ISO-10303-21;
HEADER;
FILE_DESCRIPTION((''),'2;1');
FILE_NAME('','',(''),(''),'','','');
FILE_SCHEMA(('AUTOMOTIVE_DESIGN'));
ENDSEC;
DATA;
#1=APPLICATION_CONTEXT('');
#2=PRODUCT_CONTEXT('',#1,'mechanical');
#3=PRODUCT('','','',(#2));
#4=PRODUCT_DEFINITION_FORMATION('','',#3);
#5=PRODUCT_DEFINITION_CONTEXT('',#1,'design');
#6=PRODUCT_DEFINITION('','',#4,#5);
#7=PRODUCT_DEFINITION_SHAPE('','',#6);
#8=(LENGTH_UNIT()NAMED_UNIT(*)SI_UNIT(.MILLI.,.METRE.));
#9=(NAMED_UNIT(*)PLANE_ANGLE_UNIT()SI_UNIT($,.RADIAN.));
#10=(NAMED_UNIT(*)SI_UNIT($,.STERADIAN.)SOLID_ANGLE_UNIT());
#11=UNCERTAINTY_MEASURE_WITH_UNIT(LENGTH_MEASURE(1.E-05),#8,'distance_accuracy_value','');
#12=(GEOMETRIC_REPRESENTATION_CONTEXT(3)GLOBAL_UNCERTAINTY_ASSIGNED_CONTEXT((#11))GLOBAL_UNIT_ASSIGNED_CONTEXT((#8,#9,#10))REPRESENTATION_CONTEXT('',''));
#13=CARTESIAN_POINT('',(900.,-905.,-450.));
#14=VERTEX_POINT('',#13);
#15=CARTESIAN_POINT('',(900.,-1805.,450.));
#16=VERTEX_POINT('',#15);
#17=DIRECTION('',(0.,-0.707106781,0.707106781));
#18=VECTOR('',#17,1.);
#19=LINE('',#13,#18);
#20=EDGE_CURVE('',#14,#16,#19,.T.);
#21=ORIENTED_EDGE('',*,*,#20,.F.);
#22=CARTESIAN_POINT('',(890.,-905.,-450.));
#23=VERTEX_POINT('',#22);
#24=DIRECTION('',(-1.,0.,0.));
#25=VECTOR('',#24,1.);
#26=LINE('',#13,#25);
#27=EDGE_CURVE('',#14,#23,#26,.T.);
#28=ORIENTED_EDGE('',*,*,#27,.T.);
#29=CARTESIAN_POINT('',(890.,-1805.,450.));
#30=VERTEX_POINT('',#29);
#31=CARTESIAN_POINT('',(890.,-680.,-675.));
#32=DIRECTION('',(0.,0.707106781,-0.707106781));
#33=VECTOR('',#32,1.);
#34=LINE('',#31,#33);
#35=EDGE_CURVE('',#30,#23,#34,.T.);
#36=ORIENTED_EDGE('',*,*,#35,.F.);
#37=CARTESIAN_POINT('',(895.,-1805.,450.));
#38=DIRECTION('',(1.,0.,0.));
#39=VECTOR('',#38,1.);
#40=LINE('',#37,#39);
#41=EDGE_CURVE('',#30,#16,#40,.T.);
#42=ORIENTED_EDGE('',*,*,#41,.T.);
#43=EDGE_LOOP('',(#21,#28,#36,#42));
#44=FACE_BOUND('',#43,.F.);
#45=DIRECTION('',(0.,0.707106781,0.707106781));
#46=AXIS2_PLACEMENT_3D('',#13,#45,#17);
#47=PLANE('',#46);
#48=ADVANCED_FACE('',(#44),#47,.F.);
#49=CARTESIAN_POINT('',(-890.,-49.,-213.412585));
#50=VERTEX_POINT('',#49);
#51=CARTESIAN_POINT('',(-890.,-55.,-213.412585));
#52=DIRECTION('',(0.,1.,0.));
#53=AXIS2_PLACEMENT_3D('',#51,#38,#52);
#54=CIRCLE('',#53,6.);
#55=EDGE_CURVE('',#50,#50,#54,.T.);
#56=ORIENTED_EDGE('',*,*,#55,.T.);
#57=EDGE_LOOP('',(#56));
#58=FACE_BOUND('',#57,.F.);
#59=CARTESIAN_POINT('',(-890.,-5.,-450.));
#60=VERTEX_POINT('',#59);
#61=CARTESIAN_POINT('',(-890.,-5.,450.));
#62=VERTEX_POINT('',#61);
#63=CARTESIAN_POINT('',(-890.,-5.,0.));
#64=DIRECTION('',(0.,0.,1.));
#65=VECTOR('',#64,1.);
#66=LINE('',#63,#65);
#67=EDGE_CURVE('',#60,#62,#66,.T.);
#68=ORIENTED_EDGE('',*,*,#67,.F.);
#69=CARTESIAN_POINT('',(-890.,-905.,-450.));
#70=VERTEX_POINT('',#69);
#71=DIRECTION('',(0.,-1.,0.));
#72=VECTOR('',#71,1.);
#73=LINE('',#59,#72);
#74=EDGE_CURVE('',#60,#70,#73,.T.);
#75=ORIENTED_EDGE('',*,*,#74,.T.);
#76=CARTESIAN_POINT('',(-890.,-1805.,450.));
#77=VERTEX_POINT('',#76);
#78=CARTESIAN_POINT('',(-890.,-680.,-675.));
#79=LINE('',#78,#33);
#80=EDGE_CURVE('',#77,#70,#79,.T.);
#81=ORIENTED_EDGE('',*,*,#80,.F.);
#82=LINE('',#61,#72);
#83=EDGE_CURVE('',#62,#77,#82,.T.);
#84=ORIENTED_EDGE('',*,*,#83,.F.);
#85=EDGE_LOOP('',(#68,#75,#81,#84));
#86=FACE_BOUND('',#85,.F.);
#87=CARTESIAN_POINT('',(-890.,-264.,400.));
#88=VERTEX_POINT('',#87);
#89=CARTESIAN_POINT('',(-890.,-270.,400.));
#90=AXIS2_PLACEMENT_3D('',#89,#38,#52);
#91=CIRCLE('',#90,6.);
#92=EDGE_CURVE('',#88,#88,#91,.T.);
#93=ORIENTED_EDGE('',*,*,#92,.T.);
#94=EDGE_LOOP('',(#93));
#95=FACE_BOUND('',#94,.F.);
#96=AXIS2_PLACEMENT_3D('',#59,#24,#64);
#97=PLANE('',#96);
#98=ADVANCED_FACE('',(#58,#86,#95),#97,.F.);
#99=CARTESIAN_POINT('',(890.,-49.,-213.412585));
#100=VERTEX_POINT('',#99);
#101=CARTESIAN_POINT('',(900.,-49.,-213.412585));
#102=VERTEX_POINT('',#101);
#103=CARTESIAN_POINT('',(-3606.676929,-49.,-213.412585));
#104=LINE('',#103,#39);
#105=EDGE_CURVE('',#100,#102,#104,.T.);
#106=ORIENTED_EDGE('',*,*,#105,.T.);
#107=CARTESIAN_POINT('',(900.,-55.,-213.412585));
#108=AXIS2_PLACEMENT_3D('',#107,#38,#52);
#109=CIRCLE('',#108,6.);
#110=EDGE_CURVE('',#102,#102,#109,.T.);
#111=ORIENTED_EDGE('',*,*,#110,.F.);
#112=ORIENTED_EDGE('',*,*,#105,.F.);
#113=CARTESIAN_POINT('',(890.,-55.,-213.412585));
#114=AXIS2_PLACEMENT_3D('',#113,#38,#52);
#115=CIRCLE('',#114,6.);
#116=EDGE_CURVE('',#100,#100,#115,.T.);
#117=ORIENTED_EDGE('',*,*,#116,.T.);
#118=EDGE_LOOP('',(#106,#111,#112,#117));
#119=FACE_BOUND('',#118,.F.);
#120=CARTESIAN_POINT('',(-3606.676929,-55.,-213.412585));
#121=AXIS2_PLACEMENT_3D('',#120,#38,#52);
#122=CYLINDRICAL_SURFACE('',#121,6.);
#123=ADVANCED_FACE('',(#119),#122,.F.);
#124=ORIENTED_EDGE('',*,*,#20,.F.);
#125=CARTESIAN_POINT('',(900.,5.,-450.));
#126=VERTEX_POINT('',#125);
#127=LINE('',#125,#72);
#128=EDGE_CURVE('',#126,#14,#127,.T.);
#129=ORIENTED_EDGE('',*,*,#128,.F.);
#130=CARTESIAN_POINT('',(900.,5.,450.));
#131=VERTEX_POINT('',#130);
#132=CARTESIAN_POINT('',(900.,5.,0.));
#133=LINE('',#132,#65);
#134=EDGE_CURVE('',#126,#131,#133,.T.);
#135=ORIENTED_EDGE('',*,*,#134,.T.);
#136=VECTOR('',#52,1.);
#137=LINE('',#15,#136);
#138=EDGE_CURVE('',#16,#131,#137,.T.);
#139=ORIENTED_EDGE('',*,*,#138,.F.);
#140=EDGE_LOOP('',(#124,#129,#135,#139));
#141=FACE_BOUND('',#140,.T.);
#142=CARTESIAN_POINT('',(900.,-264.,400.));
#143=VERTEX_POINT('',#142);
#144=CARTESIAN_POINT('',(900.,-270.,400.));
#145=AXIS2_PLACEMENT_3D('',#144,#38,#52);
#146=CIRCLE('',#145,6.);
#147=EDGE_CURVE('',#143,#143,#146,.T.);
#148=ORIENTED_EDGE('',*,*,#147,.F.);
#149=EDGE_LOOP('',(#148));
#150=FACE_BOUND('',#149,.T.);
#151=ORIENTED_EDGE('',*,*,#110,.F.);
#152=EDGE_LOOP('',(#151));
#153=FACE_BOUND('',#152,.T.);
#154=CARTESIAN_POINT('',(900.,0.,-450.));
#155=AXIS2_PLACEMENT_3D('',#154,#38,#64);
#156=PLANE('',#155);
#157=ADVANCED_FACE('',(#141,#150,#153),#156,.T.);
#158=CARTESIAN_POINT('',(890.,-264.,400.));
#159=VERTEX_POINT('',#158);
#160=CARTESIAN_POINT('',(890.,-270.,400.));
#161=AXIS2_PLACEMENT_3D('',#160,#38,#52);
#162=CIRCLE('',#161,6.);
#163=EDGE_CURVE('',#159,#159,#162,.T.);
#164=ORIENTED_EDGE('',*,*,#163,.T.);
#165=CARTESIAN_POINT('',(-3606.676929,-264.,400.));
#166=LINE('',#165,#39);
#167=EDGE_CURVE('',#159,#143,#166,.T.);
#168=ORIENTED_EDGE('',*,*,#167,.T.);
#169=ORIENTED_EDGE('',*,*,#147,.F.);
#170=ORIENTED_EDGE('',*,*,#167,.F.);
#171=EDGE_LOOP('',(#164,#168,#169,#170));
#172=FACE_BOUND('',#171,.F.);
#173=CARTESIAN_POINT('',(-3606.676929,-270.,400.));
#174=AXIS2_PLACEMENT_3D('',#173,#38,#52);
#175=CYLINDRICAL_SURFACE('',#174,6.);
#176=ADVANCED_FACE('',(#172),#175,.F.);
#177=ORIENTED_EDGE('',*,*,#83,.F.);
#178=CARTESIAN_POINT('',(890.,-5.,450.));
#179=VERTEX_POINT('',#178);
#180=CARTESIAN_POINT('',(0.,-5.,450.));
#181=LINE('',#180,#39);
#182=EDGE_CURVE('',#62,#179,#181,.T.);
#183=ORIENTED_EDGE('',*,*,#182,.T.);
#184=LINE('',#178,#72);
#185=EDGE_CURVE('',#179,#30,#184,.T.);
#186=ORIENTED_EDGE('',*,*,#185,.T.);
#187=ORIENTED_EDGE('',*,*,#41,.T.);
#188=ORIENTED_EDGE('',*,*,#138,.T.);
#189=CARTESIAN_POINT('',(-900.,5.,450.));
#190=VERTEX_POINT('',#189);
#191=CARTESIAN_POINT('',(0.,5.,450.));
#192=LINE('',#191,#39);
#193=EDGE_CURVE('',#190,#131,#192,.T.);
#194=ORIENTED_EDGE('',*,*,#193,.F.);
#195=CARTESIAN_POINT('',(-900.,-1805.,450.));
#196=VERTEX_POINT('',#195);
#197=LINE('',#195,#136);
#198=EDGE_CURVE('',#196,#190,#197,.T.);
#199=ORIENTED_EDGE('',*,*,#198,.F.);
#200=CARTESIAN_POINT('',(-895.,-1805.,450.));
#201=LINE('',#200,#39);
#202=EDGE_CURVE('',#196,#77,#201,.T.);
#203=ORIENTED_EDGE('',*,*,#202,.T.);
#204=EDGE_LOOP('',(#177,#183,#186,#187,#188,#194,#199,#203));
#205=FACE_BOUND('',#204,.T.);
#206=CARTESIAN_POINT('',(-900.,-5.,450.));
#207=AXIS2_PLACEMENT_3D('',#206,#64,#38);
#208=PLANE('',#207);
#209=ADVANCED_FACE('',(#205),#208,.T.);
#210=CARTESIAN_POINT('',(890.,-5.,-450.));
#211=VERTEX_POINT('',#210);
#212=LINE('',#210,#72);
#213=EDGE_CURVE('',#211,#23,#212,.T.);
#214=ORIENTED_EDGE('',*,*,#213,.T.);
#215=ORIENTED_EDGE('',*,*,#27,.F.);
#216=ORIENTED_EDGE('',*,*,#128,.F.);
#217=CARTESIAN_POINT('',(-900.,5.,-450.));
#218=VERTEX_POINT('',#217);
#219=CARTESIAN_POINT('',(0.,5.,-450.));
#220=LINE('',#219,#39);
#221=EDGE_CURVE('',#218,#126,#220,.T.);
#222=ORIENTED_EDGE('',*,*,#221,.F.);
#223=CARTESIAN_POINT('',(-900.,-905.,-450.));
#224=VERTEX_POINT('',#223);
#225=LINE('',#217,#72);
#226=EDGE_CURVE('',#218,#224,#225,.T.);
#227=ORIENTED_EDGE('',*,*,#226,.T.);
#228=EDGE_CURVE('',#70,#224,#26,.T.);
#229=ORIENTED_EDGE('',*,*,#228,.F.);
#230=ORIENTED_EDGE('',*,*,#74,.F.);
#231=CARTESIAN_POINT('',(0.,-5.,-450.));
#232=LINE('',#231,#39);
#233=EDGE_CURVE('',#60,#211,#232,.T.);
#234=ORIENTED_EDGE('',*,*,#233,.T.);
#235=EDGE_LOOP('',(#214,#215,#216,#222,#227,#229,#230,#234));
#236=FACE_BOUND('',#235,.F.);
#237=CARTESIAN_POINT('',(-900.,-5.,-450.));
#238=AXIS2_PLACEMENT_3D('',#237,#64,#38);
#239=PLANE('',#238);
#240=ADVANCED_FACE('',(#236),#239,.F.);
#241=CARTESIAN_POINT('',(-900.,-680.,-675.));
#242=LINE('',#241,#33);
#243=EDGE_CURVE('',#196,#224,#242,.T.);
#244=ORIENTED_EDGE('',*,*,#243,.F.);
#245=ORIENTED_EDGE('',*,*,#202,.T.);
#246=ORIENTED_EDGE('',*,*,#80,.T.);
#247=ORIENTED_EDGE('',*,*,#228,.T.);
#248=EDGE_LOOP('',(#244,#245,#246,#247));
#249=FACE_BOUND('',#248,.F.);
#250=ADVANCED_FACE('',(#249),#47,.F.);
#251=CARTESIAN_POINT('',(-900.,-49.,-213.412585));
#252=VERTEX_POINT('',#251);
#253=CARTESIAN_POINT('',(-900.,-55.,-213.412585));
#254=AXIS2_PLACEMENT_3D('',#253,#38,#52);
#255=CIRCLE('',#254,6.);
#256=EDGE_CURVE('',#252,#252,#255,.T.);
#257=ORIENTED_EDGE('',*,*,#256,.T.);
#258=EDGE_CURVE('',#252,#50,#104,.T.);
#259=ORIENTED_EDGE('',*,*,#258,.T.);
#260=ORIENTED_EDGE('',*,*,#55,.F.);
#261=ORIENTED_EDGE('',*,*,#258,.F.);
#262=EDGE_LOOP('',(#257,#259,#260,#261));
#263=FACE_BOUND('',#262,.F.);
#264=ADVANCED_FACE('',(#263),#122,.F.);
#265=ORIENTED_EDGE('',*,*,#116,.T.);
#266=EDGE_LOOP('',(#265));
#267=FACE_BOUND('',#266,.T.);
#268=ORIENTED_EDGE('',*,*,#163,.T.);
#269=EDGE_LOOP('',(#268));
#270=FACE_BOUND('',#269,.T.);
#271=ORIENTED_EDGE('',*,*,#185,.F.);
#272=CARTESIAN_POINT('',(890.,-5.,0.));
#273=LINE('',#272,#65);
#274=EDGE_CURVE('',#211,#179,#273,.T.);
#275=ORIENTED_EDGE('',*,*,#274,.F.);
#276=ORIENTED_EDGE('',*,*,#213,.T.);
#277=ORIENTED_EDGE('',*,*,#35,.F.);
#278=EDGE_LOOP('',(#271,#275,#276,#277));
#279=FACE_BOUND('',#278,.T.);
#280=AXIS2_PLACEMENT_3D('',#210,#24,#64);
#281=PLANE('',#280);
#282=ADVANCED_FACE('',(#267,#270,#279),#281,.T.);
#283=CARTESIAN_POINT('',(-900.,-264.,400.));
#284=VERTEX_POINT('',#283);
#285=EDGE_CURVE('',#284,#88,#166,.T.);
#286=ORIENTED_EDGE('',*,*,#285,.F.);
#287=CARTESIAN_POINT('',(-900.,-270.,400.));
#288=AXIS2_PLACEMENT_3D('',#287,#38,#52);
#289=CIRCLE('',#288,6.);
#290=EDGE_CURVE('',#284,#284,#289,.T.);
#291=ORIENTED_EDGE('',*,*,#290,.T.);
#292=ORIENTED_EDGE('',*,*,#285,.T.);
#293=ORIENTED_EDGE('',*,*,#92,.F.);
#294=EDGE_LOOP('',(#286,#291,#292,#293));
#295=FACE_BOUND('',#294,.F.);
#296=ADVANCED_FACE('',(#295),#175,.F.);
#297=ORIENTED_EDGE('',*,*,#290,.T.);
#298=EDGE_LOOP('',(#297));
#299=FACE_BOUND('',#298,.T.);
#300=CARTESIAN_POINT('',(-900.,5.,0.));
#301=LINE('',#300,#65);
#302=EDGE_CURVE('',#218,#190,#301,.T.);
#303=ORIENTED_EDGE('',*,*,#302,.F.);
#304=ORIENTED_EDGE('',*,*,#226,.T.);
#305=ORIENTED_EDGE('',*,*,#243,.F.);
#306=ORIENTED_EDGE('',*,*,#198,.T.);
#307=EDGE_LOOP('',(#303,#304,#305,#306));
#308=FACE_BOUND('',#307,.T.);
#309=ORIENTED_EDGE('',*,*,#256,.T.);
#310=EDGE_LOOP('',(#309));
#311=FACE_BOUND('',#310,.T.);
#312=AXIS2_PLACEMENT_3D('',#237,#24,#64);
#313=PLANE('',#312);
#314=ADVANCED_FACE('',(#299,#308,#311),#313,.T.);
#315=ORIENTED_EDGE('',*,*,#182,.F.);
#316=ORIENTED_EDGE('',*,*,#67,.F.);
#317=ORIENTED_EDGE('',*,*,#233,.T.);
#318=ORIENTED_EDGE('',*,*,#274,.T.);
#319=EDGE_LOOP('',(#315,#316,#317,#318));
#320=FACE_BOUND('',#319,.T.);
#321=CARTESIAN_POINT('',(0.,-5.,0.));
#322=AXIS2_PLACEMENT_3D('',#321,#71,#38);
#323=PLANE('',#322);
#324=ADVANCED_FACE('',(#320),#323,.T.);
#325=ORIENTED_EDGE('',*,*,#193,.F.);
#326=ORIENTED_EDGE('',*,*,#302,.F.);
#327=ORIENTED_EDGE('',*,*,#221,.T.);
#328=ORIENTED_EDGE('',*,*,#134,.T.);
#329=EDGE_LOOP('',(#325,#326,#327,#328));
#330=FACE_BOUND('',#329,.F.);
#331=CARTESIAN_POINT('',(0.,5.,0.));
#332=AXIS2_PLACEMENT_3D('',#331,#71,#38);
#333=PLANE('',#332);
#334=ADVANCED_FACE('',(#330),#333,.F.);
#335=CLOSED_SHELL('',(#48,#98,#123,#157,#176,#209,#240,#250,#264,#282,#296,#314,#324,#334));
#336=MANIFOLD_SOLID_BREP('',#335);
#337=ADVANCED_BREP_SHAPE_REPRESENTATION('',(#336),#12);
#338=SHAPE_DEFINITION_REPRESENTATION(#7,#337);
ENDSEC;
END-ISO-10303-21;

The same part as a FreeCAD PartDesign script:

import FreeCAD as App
import Part
import Sketcher
from FreeCAD import Vector
Q = App.Units.Quantity

doc = App.newDocument("Part")
body = doc.addObject("PartDesign::Body", "Body")

sketch1 = body.newObject("Sketcher::SketchObject", "Sketch")
sketch1.AttachmentSupport = (doc.getObject("XZ_Plane"), [""])
sketch1.MapMode = "FlatFace"
sketch1.addGeometry([
    Part.LineSegment(Vector(-900, 450, 0), Vector(-900, -450, 0)),
    Part.LineSegment(Vector(-900, -450, 0), Vector(900, -450, 0)),
    Part.LineSegment(Vector(900, -450, 0), Vector(900, 450, 0)),
    Part.LineSegment(Vector(900, 450, 0), Vector(-900, 450, 0)),
], False)
sketch1.addConstraint([
    Sketcher.Constraint("Coincident", 0, 2, 1, 1),
    Sketcher.Constraint("Coincident", 1, 2, 2, 1),
    Sketcher.Constraint("Coincident", 2, 2, 3, 1),
    Sketcher.Constraint("Coincident", 3, 2, 0, 1),
    Sketcher.Constraint("Vertical", 0),
    Sketcher.Constraint("Horizontal", 1),
    Sketcher.Constraint("Vertical", 2),
    Sketcher.Constraint("Horizontal", 3),
    Sketcher.Constraint("Symmetric", 0, 2, 2, 2, -1, 1),
    Sketcher.Constraint("DistanceX", 1, 1, 1, 2, Q("1800 mm")),
    Sketcher.Constraint("DistanceY", 0, 2, 0, 1, Q("900 mm")),
])
pad1 = body.newObject("PartDesign::Pad", "Pad")
pad1.Profile = sketch1
pad1.Length = 10
pad1.Midplane = True

sketch2 = body.newObject("Sketcher::SketchObject", "Sketch001")
sketch2.AttachmentSupport = (doc.getObject("XZ_Plane"), [""])
sketch2.MapMode = "FlatFace"
sketch2.AttachmentOffset = App.Placement(Vector(0, 0, 5), App.Rotation())
sketch2.addGeometry([
    Part.LineSegment(Vector(-900, 450, 0), Vector(-900, -450, 0)),
    Part.LineSegment(Vector(-900, -450, 0), Vector(-890, -450, 0)),
    Part.LineSegment(Vector(-890, -450, 0), Vector(-890, 450, 0)),
    Part.LineSegment(Vector(-890, 450, 0), Vector(-900, 450, 0)),
    Part.LineSegment(Vector(890, 450, 0), Vector(890, -450, 0)),
    Part.LineSegment(Vector(890, -450, 0), Vector(900, -450, 0)),
    Part.LineSegment(Vector(900, -450, 0), Vector(900, 450, 0)),
    Part.LineSegment(Vector(900, 450, 0), Vector(890, 450, 0)),
], False)
sketch2.addConstraint([
    Sketcher.Constraint("Coincident", 0, 2, 1, 1),
    Sketcher.Constraint("Coincident", 1, 2, 2, 1),
    Sketcher.Constraint("Coincident", 2, 2, 3, 1),
    Sketcher.Constraint("Coincident", 3, 2, 0, 1),
    Sketcher.Constraint("Coincident", 4, 2, 5, 1),
    Sketcher.Constraint("Coincident", 5, 2, 6, 1),
    Sketcher.Constraint("Coincident", 6, 2, 7, 1),
    Sketcher.Constraint("Coincident", 7, 2, 4, 1),
    Sketcher.Constraint("Vertical", 0),
    Sketcher.Constraint("Horizontal", 1),
    Sketcher.Constraint("Vertical", 2),
    Sketcher.Constraint("Horizontal", 3),
    Sketcher.Constraint("Vertical", 4),
    Sketcher.Constraint("Horizontal", 5),
    Sketcher.Constraint("Vertical", 6),
    Sketcher.Constraint("Horizontal", 7),
    Sketcher.Constraint("Symmetric", 2, 2, 4, 2, -1, 1),
    Sketcher.Constraint("Symmetric", 0, 2, 6, 2, -1, 1),
    Sketcher.Constraint("Horizontal", 1, 2, 4, 2),
    Sketcher.Constraint("DistanceX", 1, 1, 1, 2, Q("10 mm")),
    Sketcher.Constraint("DistanceY", 0, 2, 0, 1, Q("900 mm")),
    Sketcher.Constraint("DistanceX", 0, 2, -1, 1, Q("900 mm")),
])
pad2 = body.newObject("PartDesign::Pad", "Pad001")
pad2.Profile = sketch2
pad2.Length = 1800

sketch3 = body.newObject("Sketcher::SketchObject", "Sketch002")
sketch3.AttachmentSupport = (doc.getObject("YZ_Plane"), [""])
sketch3.MapMode = "FlatFace"
sketch3.AttachmentOffset = App.Placement(Vector(0, 0, 900), App.Rotation())
sketch3.addGeometry([
    Part.LineSegment(Vector(-905, -450, 0), Vector(-1805, 450, 0)),
    Part.LineSegment(Vector(-1805, 450, 0), Vector(-1805, -450, 0)),
    Part.LineSegment(Vector(-1805, -450, 0), Vector(-905, -450, 0)),
], False)
sketch3.addConstraint([
    Sketcher.Constraint("Coincident", 0, 2, 1, 1),
    Sketcher.Constraint("Coincident", 1, 2, 2, 1),
    Sketcher.Constraint("Coincident", 2, 2, 0, 1),
    Sketcher.Constraint("Vertical", 1),
    Sketcher.Constraint("Horizontal", 2),
    Sketcher.Constraint("Equal", 2, 1),
    Sketcher.Constraint("DistanceX", 2, 1, 2, 2, Q("900 mm")),
    Sketcher.Constraint("DistanceX", 0, 2, -1, 1, Q("1805 mm")),
    Sketcher.Constraint("DistanceY", -1, 1, 0, 2, Q("450 mm")),
])
pocket1 = body.newObject("PartDesign::Pocket", "Pocket")
pocket1.Profile = sketch3
pocket1.Type = "ThroughAll"

sketch4 = body.newObject("Sketcher::SketchObject", "Sketch003")
sketch4.AttachmentSupport = (doc.getObject("YZ_Plane"), [""])
sketch4.MapMode = "FlatFace"
sketch4.AttachmentOffset = App.Placement(Vector(0, 0, -900), App.Rotation())
sketch4.addGeometry([
    Part.Circle(Vector(-270, 400, 0), Vector(0, 0, 1), 6),
    Part.Circle(Vector(-55, -213.412585, 0), Vector(0, 0, 1), 6),
], False)
sketch4.addConstraint([
    Sketcher.Constraint("Equal", 0, 1),
    Sketcher.Constraint("Diameter", 0, Q("12 mm")),
    Sketcher.Constraint("DistanceX", 0, 3, -1, 1, Q("270 mm")),
    Sketcher.Constraint("DistanceY", -1, 1, 0, 3, Q("400 mm")),
    Sketcher.Constraint("DistanceX", 1, 3, -1, 1, Q("55 mm")),
    Sketcher.Constraint("DistanceY", 1, 3, -1, 1, Q("213.412585 mm")),
])
doc.recompute()
hole = body.newObject("PartDesign::Hole", "Hole")
hole.Profile = sketch4
hole.ThreadType = "None"
hole.Diameter = 12
hole.DepthType = "ThroughAll"
hole.Reversed = True

doc.recompute()
